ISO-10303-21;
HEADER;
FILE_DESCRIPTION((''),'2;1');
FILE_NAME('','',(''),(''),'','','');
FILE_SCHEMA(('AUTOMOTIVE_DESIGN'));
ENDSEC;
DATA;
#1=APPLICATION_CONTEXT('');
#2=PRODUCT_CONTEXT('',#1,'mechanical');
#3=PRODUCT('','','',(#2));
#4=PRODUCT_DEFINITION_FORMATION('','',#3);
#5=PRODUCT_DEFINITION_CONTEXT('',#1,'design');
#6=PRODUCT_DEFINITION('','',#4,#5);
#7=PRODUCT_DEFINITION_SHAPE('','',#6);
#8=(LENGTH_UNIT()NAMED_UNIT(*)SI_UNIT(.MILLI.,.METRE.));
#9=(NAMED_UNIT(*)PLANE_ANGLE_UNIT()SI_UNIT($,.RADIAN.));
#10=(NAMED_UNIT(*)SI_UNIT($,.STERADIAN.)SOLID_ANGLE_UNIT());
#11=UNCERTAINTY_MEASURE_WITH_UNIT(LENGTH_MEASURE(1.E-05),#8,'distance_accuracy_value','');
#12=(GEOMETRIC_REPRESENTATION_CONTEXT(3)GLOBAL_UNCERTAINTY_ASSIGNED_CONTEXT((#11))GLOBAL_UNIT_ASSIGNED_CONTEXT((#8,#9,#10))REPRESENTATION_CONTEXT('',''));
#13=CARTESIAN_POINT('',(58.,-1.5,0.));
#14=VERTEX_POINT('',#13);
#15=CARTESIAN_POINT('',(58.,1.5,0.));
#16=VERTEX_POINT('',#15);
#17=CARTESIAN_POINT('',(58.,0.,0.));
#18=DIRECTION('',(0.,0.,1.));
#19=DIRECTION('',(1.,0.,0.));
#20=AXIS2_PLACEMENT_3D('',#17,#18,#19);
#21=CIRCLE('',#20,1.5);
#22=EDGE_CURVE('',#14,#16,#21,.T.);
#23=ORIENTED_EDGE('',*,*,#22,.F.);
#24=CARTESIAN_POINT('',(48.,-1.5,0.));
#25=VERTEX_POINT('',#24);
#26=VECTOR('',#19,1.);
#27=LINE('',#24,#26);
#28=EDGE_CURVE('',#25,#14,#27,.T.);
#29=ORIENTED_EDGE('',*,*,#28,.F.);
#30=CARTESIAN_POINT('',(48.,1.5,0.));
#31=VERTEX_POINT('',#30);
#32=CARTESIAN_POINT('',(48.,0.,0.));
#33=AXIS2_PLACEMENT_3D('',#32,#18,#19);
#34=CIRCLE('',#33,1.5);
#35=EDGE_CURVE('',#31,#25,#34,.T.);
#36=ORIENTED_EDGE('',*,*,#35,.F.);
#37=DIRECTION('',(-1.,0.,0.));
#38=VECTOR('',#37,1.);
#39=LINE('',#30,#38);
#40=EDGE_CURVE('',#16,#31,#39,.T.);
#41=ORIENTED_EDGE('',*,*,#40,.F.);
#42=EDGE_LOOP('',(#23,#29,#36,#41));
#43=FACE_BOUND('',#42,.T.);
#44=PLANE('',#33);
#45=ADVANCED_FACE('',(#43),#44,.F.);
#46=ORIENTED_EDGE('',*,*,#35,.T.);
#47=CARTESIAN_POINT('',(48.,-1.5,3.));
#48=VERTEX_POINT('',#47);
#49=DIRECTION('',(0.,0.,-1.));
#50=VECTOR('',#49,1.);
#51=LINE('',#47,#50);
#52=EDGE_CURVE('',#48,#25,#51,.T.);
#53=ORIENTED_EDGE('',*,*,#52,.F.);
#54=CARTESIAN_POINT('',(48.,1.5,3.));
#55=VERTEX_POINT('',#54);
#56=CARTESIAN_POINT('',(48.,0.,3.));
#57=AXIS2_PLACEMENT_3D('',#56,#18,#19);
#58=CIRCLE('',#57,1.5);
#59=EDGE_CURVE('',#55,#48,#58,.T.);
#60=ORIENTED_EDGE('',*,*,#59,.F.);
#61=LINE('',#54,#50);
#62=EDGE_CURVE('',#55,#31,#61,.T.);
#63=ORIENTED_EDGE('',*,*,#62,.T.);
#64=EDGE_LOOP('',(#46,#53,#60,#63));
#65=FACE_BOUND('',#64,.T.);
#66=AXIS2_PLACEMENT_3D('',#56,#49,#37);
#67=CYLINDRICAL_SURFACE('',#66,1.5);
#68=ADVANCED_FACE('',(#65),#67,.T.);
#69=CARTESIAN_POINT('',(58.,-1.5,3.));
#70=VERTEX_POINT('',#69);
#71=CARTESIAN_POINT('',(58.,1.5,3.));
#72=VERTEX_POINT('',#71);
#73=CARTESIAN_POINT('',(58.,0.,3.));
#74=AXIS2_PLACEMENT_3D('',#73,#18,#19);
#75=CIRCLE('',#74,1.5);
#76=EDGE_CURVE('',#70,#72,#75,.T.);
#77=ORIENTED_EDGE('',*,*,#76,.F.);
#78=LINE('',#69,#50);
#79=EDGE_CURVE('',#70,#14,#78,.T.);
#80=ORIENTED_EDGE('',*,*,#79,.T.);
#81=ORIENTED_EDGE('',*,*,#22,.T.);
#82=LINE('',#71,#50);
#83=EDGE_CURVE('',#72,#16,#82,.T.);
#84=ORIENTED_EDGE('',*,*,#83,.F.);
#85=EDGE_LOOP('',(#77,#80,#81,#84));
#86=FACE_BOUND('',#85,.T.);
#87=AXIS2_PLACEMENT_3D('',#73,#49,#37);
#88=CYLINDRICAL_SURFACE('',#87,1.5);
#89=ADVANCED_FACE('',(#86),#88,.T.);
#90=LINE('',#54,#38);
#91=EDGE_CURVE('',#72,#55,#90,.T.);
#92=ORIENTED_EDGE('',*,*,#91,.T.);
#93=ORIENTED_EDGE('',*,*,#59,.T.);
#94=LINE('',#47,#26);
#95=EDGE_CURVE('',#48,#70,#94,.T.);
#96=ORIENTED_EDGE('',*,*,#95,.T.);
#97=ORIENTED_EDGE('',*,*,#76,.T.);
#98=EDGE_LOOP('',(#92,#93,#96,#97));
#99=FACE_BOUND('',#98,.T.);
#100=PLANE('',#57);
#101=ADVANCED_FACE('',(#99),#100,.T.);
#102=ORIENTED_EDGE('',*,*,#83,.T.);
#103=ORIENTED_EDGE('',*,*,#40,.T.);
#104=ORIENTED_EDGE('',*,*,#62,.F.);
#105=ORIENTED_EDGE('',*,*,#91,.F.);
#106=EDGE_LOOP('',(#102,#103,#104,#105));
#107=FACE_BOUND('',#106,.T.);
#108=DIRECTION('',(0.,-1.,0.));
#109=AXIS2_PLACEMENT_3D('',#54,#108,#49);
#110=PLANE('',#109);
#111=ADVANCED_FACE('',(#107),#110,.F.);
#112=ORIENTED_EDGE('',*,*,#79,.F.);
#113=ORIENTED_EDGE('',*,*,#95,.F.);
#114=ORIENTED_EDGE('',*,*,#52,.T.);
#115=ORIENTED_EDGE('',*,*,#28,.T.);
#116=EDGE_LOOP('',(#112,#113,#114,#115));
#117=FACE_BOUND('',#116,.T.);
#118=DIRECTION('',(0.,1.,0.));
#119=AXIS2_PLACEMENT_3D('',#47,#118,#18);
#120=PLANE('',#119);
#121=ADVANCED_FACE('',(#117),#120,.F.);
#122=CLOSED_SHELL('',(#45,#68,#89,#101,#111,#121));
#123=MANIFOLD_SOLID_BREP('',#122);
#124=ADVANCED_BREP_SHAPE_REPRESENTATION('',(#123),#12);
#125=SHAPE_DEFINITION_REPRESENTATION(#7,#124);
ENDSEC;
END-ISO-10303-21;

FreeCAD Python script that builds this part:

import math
import FreeCAD as App
import Part
import Sketcher

V = App.Vector

doc = App.newDocument("Part")
params = doc.addObject("Spreadsheet::Sheet", "Params")
for row, (alias, value) in enumerate([
    ("sketch1_radius", "1.5 mm"),
    ("sketch1_width", "10 mm"),
    ("pad1_length", "3 mm"),
], start=1):
    params.set(f"A{row}", alias)
    params.set(f"B{row}", "=" + value)
    params.setAlias(f"B{row}", alias)

body = doc.addObject("PartDesign::Body", "Body")

# Sketch on XY plane
sketch1 = body.newObject("Sketcher::SketchObject", "Sketch")
sketch1.AttachmentSupport = (doc.getObject("XY_Plane"), [""])
sketch1.MapMode = "FlatFace"
sketch1.addGeometry(Part.LineSegment(V(58, 1.5, 0), V(48, 1.5, 0)), False)
sketch1.addGeometry(Part.ArcOfCircle(Part.Circle(V(48, 0, 0), V(0, 0, 1), 1.5), math.radians(90), math.radians(270)), False)
sketch1.addGeometry(Part.LineSegment(V(48, -1.5, 0), V(58, -1.5, 0)), False)
sketch1.addGeometry(Part.ArcOfCircle(Part.Circle(V(58, 0, 0), V(0, 0, 1), 1.5), math.radians(-90), math.radians(90)), False)
sketch1.addConstraint(Sketcher.Constraint("Tangent", 0, 2, 1, 1))
sketch1.addConstraint(Sketcher.Constraint("Tangent", 1, 2, 2, 1))
sketch1.addConstraint(Sketcher.Constraint("Tangent", 2, 2, 3, 1))
sketch1.addConstraint(Sketcher.Constraint("Tangent", 3, 2, 0, 1))
sketch1.addConstraint(Sketcher.Constraint("Horizontal", 0))
sketch1.addConstraint(Sketcher.Constraint("Horizontal", 2))
sketch1.addConstraint(Sketcher.Constraint("PointOnObject", 1, 3, -1))
sketch1.addConstraint(Sketcher.Constraint("Radius", 1, 1.5))
sketch1.addConstraint(Sketcher.Constraint("DistanceX", 0, 2, 0, 1, 10.0))
sketch1.addConstraint(Sketcher.Constraint("DistanceX", -1, 1, 1, 3, 48.0))
sketch1.setExpression("Constraints[7]", "Params.sketch1_radius")
sketch1.setExpression("Constraints[8]", "Params.sketch1_width")
pad1 = body.newObject("PartDesign::Pad", "Pad")
pad1.Profile = sketch1
pad1.setExpression("Length", "Params.pad1_length")

doc.recompute()
